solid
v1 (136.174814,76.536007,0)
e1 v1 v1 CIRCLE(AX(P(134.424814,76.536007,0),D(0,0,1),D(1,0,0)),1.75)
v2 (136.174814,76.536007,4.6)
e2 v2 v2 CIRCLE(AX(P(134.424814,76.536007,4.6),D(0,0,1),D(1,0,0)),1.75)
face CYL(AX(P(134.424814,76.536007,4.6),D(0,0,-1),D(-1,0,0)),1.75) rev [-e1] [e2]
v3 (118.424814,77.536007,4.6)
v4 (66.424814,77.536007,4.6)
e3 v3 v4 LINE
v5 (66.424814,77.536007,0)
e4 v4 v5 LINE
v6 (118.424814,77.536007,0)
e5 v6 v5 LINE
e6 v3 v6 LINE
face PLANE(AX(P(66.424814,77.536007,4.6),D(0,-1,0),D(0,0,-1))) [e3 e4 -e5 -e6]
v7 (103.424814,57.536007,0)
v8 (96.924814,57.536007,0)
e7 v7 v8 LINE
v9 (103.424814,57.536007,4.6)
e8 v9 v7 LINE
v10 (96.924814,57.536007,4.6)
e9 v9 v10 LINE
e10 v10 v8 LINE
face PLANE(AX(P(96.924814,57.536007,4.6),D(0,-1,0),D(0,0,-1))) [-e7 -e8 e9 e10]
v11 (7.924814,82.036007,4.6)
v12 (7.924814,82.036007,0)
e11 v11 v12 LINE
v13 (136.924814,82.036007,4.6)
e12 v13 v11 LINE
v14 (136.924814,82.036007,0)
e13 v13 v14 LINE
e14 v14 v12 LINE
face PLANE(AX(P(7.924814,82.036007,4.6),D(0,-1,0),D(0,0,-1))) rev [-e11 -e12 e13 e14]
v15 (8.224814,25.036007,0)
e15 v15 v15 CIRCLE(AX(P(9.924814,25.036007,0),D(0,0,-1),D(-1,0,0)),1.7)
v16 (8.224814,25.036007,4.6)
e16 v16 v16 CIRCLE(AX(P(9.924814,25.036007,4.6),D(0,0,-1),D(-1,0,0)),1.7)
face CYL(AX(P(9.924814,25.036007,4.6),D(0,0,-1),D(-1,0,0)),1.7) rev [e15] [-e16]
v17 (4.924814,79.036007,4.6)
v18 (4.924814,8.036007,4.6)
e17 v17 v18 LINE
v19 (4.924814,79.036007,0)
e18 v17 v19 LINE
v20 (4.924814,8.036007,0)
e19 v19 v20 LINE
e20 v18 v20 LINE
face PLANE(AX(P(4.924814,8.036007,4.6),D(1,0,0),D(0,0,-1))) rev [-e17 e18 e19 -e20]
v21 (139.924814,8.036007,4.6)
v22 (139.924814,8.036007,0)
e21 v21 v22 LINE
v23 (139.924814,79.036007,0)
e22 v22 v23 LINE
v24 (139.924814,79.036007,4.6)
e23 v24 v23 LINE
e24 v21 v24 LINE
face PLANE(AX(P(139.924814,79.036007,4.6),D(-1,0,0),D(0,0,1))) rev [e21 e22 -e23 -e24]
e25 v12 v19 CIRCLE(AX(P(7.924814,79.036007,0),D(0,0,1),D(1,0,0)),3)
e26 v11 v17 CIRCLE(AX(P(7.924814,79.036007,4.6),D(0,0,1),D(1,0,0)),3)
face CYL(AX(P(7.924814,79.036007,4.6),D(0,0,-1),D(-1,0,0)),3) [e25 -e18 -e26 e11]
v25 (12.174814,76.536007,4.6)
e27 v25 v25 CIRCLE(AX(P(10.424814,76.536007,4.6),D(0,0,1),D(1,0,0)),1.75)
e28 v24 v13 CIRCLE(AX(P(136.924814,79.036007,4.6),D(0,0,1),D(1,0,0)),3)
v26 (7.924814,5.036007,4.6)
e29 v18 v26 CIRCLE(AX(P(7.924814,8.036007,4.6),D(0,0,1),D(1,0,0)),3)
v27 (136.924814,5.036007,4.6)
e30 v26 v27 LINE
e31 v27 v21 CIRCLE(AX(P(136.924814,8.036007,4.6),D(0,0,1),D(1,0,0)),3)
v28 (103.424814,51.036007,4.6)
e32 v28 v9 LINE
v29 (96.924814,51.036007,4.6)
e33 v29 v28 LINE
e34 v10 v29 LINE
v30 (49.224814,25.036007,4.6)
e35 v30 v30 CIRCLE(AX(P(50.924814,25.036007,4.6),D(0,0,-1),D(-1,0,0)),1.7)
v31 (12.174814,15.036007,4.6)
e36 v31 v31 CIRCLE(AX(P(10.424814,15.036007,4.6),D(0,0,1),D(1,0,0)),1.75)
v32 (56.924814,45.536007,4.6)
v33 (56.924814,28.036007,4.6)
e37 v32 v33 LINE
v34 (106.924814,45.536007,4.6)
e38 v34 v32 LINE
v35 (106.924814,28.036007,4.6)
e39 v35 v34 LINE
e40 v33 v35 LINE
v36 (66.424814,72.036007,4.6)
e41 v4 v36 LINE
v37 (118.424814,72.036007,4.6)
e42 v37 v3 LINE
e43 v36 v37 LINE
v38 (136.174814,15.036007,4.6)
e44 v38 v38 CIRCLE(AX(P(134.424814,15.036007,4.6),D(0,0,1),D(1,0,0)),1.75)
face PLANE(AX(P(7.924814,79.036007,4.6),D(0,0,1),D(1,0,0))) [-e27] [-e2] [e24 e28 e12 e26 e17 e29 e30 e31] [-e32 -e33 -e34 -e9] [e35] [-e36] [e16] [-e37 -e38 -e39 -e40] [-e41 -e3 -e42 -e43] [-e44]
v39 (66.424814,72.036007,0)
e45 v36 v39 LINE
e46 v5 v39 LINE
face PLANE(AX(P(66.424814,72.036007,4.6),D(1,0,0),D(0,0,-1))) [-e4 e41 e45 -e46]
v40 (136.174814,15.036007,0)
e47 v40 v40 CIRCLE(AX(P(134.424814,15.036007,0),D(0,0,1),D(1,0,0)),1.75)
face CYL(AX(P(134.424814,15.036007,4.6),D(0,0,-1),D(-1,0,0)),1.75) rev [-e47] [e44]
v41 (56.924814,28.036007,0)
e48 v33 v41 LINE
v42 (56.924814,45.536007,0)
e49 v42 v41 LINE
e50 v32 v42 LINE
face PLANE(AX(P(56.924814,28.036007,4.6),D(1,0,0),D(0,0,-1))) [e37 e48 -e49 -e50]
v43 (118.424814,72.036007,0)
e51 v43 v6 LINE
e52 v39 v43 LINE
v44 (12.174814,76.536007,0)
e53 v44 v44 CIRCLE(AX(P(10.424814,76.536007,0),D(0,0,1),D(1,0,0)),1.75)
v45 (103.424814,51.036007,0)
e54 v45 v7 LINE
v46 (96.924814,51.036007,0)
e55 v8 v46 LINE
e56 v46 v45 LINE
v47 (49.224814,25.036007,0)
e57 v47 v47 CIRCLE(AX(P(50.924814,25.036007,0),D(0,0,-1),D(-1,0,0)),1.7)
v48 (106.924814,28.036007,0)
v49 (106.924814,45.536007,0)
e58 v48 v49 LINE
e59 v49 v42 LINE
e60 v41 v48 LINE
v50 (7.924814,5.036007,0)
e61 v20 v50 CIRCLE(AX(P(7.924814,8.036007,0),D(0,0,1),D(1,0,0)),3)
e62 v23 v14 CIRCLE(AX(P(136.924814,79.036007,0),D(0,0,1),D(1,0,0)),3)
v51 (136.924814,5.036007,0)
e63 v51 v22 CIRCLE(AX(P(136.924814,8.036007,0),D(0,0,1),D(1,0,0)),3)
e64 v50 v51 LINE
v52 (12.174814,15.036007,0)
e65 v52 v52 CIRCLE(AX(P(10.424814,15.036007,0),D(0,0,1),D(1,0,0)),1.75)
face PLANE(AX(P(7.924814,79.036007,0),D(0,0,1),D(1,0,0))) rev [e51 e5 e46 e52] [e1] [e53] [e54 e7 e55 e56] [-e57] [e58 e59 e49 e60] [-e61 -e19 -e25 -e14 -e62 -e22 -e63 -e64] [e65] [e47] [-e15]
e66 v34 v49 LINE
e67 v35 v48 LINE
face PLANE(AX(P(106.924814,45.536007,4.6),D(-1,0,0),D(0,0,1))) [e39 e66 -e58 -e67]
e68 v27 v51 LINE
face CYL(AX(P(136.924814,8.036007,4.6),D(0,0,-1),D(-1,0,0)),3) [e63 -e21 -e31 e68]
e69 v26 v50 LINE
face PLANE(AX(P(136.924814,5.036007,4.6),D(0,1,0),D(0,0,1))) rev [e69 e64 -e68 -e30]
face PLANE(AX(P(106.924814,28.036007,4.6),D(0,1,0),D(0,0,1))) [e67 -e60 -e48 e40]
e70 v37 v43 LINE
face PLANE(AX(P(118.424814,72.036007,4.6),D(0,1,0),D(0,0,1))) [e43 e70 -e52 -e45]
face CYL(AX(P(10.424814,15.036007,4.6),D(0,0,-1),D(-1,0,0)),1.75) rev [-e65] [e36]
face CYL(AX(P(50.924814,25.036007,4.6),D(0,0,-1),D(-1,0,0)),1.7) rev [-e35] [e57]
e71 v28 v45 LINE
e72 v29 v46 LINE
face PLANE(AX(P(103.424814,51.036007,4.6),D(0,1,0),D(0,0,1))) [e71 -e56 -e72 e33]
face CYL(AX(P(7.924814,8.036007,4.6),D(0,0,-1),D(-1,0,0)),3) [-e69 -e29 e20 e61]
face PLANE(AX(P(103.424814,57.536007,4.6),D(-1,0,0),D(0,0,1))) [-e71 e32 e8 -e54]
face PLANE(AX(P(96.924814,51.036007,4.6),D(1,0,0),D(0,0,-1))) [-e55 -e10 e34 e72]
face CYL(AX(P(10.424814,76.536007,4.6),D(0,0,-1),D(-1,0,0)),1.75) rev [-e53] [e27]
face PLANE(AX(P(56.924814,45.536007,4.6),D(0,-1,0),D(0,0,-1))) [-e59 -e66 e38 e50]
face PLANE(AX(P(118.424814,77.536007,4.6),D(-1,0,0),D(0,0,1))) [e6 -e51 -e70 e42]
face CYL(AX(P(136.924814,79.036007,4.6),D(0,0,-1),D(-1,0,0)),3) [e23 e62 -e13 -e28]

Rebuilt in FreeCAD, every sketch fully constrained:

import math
import FreeCAD as App
import Part
import Sketcher
from FreeCAD import Vector
Q = App.Units.Quantity

doc = App.newDocument("Part")
body = doc.addObject("PartDesign::Body", "Body")

# Sketch on XY plane
sketch1 = body.newObject("Sketcher::SketchObject", "Sketch")
sketch1.AttachmentSupport = (doc.getObject("XY_Plane"), [""])
sketch1.MapMode = "FlatFace"
sketch1.addGeometry([
    Part.LineSegment(Vector(136.924814, 82.036007, 0), Vector(7.924814, 82.036007, 0)),  # 0
    Part.ArcOfCircle(Part.Circle(Vector(7.924814, 79.036007, 0), Vector(0, 0, 1), 3), math.radians(90), math.radians(180)),  # 1
    Part.LineSegment(Vector(4.924814, 79.036007, 0), Vector(4.924814, 8.036007, 0)),  # 2
    Part.ArcOfCircle(Part.Circle(Vector(7.924814, 8.036007, 0), Vector(0, 0, 1), 3), math.radians(180), math.radians(270)),  # 3
    Part.LineSegment(Vector(7.924814, 5.036007, 0), Vector(136.924814, 5.036007, 0)),  # 4
    Part.ArcOfCircle(Part.Circle(Vector(136.924814, 8.036007, 0), Vector(0, 0, 1), 3), math.radians(-90), math.radians(0)),  # 5
    Part.LineSegment(Vector(139.924814, 8.036007, 0), Vector(139.924814, 79.036007, 0)),  # 6
    Part.ArcOfCircle(Part.Circle(Vector(136.924814, 79.036007, 0), Vector(0, 0, 1), 3), math.radians(0), math.radians(90)),  # 7
    Part.Circle(Vector(134.424814, 15.036007, 0), Vector(0, 0, 1), 1.75),  # 8
    Part.LineSegment(Vector(56.924814, 28.036007, 0), Vector(56.924814, 45.536007, 0)),  # 9
    Part.LineSegment(Vector(56.924814, 45.536007, 0), Vector(106.924814, 45.536007, 0)),  # 10
    Part.LineSegment(Vector(106.924814, 45.536007, 0), Vector(106.924814, 28.036007, 0)),  # 11
    Part.LineSegment(Vector(106.924814, 28.036007, 0), Vector(56.924814, 28.036007, 0)),  # 12
    Part.Circle(Vector(10.424814, 15.036007, 0), Vector(0, 0, 1), 1.75),  # 13
    Part.LineSegment(Vector(96.924814, 51.036007, 0), Vector(96.924814, 57.536007, 0)),  # 14
    Part.LineSegment(Vector(96.924814, 57.536007, 0), Vector(103.424814, 57.536007, 0)),  # 15
    Part.LineSegment(Vector(103.424814, 57.536007, 0), Vector(103.424814, 51.036007, 0)),  # 16
    Part.LineSegment(Vector(103.424814, 51.036007, 0), Vector(96.924814, 51.036007, 0)),  # 17
    Part.Circle(Vector(134.424814, 76.536007, 0), Vector(0, 0, 1), 1.75),  # 18
    Part.LineSegment(Vector(66.424814, 72.036007, 0), Vector(66.424814, 77.536007, 0)),  # 19
    Part.LineSegment(Vector(66.424814, 77.536007, 0), Vector(118.424814, 77.536007, 0)),  # 20
    Part.LineSegment(Vector(118.424814, 77.536007, 0), Vector(118.424814, 72.036007, 0)),  # 21
    Part.LineSegment(Vector(118.424814, 72.036007, 0), Vector(66.424814, 72.036007, 0)),  # 22
    Part.Circle(Vector(10.424814, 76.536007, 0), Vector(0, 0, 1), 1.75),  # 23
], False)
sketch1.addConstraint([
    Sketcher.Constraint("Tangent", 0, 2, 1, 1),
    Sketcher.Constraint("Tangent", 1, 2, 2, 1),
    Sketcher.Constraint("Tangent", 2, 2, 3, 1),
    Sketcher.Constraint("Tangent", 3, 2, 4, 1),
    Sketcher.Constraint("Tangent", 4, 2, 5, 1),
    Sketcher.Constraint("Tangent", 5, 2, 6, 1),
    Sketcher.Constraint("Tangent", 6, 2, 7, 1),
    Sketcher.Constraint("Tangent", 7, 2, 0, 1),
    Sketcher.Constraint("Coincident", 9, 2, 10, 1),
    Sketcher.Constraint("Coincident", 10, 2, 11, 1),
    Sketcher.Constraint("Coincident", 11, 2, 12, 1),
    Sketcher.Constraint("Coincident", 12, 2, 9, 1),
    Sketcher.Constraint("Coincident", 14, 2, 15, 1),
    Sketcher.Constraint("Coincident", 15, 2, 16, 1),
    Sketcher.Constraint("Coincident", 16, 2, 17, 1),
    Sketcher.Constraint("Coincident", 17, 2, 14, 1),
    Sketcher.Constraint("Coincident", 19, 2, 20, 1),
    Sketcher.Constraint("Coincident", 20, 2, 21, 1),
    Sketcher.Constraint("Coincident", 21, 2, 22, 1),
    Sketcher.Constraint("Coincident", 22, 2, 19, 1),
    Sketcher.Constraint("Horizontal", 0),
    Sketcher.Constraint("Vertical", 2),
    Sketcher.Constraint("Horizontal", 4),
    Sketcher.Constraint("Vertical", 6),
    Sketcher.Constraint("Vertical", 9),
    Sketcher.Constraint("Horizontal", 10),
    Sketcher.Constraint("Vertical", 11),
    Sketcher.Constraint("Horizontal", 12),
    Sketcher.Constraint("Vertical", 14),
    Sketcher.Constraint("Horizontal", 15),
    Sketcher.Constraint("Vertical", 16),
    Sketcher.Constraint("Horizontal", 17),
    Sketcher.Constraint("Vertical", 19),
    Sketcher.Constraint("Horizontal", 20),
    Sketcher.Constraint("Vertical", 21),
    Sketcher.Constraint("Horizontal", 22),
    Sketcher.Constraint("Equal", 1, 3),
    Sketcher.Constraint("Equal", 3, 5),
    Sketcher.Constraint("Equal", 5, 7),
    Sketcher.Constraint("Equal", 8, 13),
    Sketcher.Constraint("Equal", 13, 18),
    Sketcher.Constraint("Equal", 18, 23),
    Sketcher.Constraint("Horizontal", 8, 3, 13, 3),
    Sketcher.Constraint("Horizontal", 18, 3, 23, 3),
    Sketcher.Constraint("Vertical", 8, 3, 18, 3),
    Sketcher.Constraint("Vertical", 13, 3, 23, 3),
    Sketcher.Constraint("Equal", 17, 14),
    Sketcher.Constraint("Radius", 1, Q("3 mm")),
    Sketcher.Constraint("Diameter", 8, Q("3.5 mm")),
    Sketcher.Constraint("DistanceX", 0, 2, 0, 1, Q("129 mm")),
    Sketcher.Constraint("DistanceX", 10, 1, 10, 2, Q("50 mm")),
    Sketcher.Constraint("DistanceX", 20, 1, 20, 2, Q("52 mm")),
    Sketcher.Constraint("DistanceY", 2, 2, 2, 1, Q("71 mm")),
    Sketcher.Constraint("DistanceX", 15, 1, 15, 2, Q("6.5 mm")),
    Sketcher.Constraint("DistanceY", 9, 1, 9, 2, Q("17.5 mm")),
    Sketcher.Constraint("DistanceY", 19, 1, 19, 2, Q("5.5 mm")),
    Sketcher.Constraint("DistanceY", 5, 3, 8, 3, Q("7 mm")),
    Sketcher.Constraint("DistanceX", 13, 3, 8, 3, Q("124 mm")),
    Sketcher.Constraint("DistanceY", 9, 2, 23, 3, Q("31 mm")),
    Sketcher.Constraint("DistanceX", 1, 3, 9, 2, Q("49 mm")),
    Sketcher.Constraint("DistanceY", 8, 3, 11, 2, Q("13 mm")),
    Sketcher.Constraint("DistanceX", 14, 2, 10, 2, Q("10 mm")),
    Sketcher.Constraint("DistanceY", 10, 2, 14, 2, Q("12 mm")),
    Sketcher.Constraint("DistanceX", 15, 2, 18, 3, Q("31 mm")),
    Sketcher.Constraint("DistanceY", 9, 2, 19, 2, Q("32 mm")),
    Sketcher.Constraint("DistanceX", 19, 2, 15, 2, Q("37 mm")),
    Sketcher.Constraint("DistanceX", -1, 1, 1, 3, Q("7.924814 mm")),
    Sketcher.Constraint("DistanceY", -1, 1, 1, 3, Q("79.036007 mm")),
])
pad1 = body.newObject("PartDesign::Pad", "Pad")
pad1.Profile = sketch1
pad1.Length = 4.6

# Sketch on XY plane
sketch2 = body.newObject("Sketcher::SketchObject", "Sketch001")
sketch2.AttachmentSupport = (doc.getObject("XY_Plane"), [""])
sketch2.MapMode = "FlatFace"
sketch2.addGeometry([
    Part.Circle(Vector(50.924814, 25.036007, 0), Vector(0, 0, 1), 1.7),
    Part.Circle(Vector(9.924814, 25.036007, 0), Vector(0, 0, 1), 1.7),
], False)
sketch2.addConstraint([
    Sketcher.Constraint("Equal", 0, 1),
    Sketcher.Constraint("Horizontal", 0, 3, 1, 3),
    Sketcher.Constraint("Diameter", 0, Q("3.4 mm")),
    Sketcher.Constraint("DistanceX", 1, 3, 0, 3, Q("41 mm")),
    Sketcher.Constraint("DistanceX", -1, 1, 0, 3, Q("50.924814 mm")),
    Sketcher.Constraint("DistanceY", -1, 1, 0, 3, Q("25.036007 mm")),
])
pocket1 = body.newObject("PartDesign::Pocket", "Pocket")
pocket1.Profile = sketch2
pocket1.Type = "ThroughAll"
pocket1.Reversed = True

doc.recompute()
